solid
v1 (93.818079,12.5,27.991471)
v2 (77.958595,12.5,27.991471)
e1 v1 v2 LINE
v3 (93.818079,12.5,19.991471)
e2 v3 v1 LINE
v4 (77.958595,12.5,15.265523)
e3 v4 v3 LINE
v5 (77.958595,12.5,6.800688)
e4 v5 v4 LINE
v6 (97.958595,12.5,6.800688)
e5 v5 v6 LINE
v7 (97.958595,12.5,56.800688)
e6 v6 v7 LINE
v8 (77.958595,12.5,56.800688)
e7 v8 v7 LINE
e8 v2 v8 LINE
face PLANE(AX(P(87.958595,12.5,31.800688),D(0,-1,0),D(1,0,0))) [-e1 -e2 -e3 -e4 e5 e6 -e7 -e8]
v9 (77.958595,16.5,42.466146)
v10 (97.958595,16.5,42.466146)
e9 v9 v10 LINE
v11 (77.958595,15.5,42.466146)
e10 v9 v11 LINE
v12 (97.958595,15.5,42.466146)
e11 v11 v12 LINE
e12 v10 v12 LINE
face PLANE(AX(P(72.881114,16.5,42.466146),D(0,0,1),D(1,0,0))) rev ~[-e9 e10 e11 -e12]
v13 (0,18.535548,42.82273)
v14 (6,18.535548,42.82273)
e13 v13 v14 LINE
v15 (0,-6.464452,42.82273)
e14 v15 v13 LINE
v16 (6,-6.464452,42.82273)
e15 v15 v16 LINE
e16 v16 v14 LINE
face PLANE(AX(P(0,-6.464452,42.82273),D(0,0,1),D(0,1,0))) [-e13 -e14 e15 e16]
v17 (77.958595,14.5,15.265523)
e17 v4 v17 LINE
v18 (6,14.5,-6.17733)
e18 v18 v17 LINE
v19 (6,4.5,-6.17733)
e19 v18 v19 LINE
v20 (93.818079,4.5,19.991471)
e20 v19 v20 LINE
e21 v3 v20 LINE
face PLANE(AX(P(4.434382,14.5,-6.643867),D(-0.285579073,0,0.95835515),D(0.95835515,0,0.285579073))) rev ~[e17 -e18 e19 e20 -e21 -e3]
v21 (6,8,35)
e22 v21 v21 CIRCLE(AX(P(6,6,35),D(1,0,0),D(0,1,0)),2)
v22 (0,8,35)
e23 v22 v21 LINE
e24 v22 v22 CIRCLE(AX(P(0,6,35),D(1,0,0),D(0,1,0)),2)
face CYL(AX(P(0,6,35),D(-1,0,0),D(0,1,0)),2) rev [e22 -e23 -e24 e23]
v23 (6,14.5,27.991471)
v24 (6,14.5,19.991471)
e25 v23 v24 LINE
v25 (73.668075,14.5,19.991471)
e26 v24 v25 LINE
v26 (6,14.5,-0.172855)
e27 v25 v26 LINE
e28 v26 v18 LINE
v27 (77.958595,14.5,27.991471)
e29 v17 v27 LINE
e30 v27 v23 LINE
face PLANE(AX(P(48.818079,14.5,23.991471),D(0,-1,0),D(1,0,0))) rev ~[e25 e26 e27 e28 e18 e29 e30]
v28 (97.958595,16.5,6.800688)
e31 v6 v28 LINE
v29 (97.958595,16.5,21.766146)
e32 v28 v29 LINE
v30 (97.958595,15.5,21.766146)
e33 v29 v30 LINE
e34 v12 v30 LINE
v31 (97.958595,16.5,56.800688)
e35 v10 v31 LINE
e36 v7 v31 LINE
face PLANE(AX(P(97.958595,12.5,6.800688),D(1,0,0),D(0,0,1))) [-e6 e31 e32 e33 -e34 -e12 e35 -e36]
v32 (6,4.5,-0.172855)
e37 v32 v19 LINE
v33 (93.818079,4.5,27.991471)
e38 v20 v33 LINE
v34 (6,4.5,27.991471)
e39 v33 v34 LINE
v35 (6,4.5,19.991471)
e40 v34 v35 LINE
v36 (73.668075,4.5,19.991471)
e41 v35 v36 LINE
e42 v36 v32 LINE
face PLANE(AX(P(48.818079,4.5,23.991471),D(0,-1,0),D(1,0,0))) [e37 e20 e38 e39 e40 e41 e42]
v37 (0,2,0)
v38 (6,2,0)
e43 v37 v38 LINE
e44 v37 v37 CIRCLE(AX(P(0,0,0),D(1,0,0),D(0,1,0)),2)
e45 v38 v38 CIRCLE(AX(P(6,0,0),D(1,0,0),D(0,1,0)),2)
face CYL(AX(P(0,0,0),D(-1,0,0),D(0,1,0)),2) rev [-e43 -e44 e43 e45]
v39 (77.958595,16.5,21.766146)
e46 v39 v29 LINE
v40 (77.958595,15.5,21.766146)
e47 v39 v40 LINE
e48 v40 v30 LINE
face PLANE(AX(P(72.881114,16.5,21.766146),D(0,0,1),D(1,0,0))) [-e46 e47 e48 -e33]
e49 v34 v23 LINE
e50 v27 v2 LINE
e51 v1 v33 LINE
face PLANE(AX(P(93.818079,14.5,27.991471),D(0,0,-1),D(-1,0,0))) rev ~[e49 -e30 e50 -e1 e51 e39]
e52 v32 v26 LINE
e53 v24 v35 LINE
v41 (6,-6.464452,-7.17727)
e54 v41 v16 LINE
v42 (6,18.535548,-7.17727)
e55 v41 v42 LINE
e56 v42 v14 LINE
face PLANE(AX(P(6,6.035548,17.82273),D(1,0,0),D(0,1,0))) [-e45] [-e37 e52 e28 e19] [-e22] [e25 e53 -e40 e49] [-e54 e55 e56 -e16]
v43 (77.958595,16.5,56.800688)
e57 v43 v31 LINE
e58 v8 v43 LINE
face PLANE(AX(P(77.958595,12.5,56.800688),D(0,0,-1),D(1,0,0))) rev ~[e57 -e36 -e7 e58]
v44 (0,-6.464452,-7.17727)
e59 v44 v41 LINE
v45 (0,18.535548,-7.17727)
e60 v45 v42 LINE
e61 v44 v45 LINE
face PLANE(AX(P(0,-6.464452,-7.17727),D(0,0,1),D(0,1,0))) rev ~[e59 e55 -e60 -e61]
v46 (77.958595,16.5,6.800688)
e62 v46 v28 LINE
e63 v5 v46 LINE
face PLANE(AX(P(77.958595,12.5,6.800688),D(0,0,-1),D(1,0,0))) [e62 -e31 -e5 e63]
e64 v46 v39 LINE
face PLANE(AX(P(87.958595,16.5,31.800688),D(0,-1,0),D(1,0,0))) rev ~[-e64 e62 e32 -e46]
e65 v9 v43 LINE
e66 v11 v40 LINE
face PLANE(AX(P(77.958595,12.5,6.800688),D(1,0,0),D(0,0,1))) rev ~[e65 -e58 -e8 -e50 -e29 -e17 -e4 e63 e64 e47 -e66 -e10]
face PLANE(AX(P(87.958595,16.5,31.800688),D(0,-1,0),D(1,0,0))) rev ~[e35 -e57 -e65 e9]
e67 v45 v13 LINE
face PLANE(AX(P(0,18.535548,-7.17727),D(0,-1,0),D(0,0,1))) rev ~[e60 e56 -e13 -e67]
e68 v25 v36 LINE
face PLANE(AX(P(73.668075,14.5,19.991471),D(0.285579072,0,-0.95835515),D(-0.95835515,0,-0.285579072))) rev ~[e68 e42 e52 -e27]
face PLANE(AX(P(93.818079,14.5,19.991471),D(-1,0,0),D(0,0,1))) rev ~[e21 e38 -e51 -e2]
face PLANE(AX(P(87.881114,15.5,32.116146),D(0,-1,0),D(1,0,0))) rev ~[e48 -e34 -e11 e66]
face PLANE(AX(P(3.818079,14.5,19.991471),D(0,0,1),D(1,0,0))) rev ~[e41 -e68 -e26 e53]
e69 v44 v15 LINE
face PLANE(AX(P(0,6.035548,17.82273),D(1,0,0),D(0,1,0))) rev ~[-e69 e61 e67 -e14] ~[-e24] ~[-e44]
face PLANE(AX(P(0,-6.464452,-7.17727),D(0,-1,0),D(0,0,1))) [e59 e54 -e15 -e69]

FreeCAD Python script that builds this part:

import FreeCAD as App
import Part
import Sketcher


def add_polygon(sketch, points):
    """Adds a closed chain of lines whose ends are joined by coincident constraints."""
    first, n = sketch.GeometryCount, len(points)
    for a, b in zip(points, points[1:] + points[:1]):
        sketch.addGeometry(Part.LineSegment(App.Vector(*a, 0), App.Vector(*b, 0)), False)
    for i in range(n):
        sketch.addConstraint(Sketcher.Constraint("Coincident", first + i, 2, first + (i + 1) % n, 1))

doc = App.newDocument("Part")
params = doc.addObject("Spreadsheet::Sheet", "Params")
for row, (alias, value) in enumerate([
    ("sketch1_diameter", "4 mm"),
    ("sketch1_width", "25 mm"),
    ("sketch1_height", "50 mm"),
    ("pad1_length", "6 mm"),
    ("sketch2_width", "90 mm"),
    ("sketch2_height", "8 mm"),
    ("pad2_length", "10 mm"),
    ("sketch3_width", "20 mm"),
    ("sketch3_height", "50 mm"),
    ("pad3_length", "4 mm"),
    ("sketch4_width", "30 mm"),
    ("sketch4_height", "20.7 mm"),
    ("pocket1_length", "1 mm"),
], start=1):
    params.set(f"A{row}", alias)
    params.set(f"B{row}", "=" + value)
    params.setAlias(f"B{row}", alias)

body = doc.addObject("PartDesign::Body", "Body")

# Sketch on YZ plane
sketch1 = doc.addObject("Sketcher::SketchObject", "Sketch")
body.addObject(sketch1)
sketch1.AttachmentSupport = (doc.YZ_Plane, [""])
sketch1.MapMode = "FlatFace"
add_polygon(sketch1, [(-6.464452, 42.82273), (-6.464452, -7.17727), (18.535548, -7.17727), (18.535548, 42.82273)])  # lines 0-3
sketch1.addGeometry(Part.Circle(App.Vector(0, 0, 0), App.Vector(0, 0, 1), 2), False)  # 4
sketch1.addGeometry(Part.Circle(App.Vector(6, 35, 0), App.Vector(0, 0, 1), 2), False)  # 5
sketch1.addConstraint([
    Sketcher.Constraint("Vertical", 0),
    Sketcher.Constraint("Horizontal", 1),
    Sketcher.Constraint("Vertical", 2),
    Sketcher.Constraint("Horizontal", 3),
    Sketcher.Constraint("Coincident", 4, 3, -1, 1),
    Sketcher.Constraint("Equal", 4, 5),
    Sketcher.Constraint("Diameter", 4, 4.0),
    Sketcher.Constraint("DistanceX", 1, 1, 1, 2, 25.0),
    Sketcher.Constraint("DistanceY", 0, 2, 0, 1, 50.0),
    Sketcher.Constraint("DistanceX", -1, 1, 5, 3, 6.0),
    Sketcher.Constraint("DistanceY", -1, 1, 5, 3, 35.0),
    Sketcher.Constraint("DistanceX", 0, 2, -1, 1, 6.464452),
    Sketcher.Constraint("DistanceY", 0, 2, -1, 1, 7.17727),
])
sketch1.setExpression("Constraints[10]", "Params.sketch1_diameter")
sketch1.setExpression("Constraints[11]", "Params.sketch1_width")
sketch1.setExpression("Constraints[12]", "Params.sketch1_height")
pad1 = doc.addObject("PartDesign::Pad", "Pad")
body.addObject(pad1)
pad1.Profile = sketch1
pad1.setExpression("Length", "Params.pad1_length")

# Sketch on XZ plane
sketch2 = doc.addObject("Sketcher::SketchObject", "Sketch001")
body.addObject(sketch2)
sketch2.AttachmentSupport = (doc.XZ_Plane, [""])
sketch2.MapMode = "FlatFace"
sketch2.AttachmentOffset = App.Placement(App.Vector(0, 0, -14.5), App.Rotation())
add_polygon(sketch2, [(93.818079, 27.991471), (3.818079, 27.991471), (3.818079, 19.991471), (73.668075, 19.991471), (4.434382, -0.639392), (4.434382, -6.643867), (93.818079, 19.991471)])  # lines 0-6
sketch2.addConstraint([
    Sketcher.Constraint("Horizontal", 0),
    Sketcher.Constraint("Vertical", 1),
    Sketcher.Constraint("Horizontal", 2),
    Sketcher.Constraint("Vertical", 4),
    Sketcher.Constraint("Vertical", 6),
    Sketcher.Constraint("Parallel", 3, 5),
    Sketcher.Constraint("Horizontal", 2, 2, 5, 2),
    Sketcher.Constraint("DistanceX", 0, 2, 0, 1, 90.0),
    Sketcher.Constraint("DistanceY", 1, 2, 1, 1, 8.0),
    Sketcher.Constraint("Distance", 3, 72.242209),
    Sketcher.Constraint("Distance", 5, 93.267821),
    Sketcher.Constraint("DistanceX", 2, 1, 2, 2, 69.849996),
    Sketcher.Constraint("DistanceX", -1, 1, 0, 2, 3.818079),
    Sketcher.Constraint("DistanceY", -1, 1, 0, 2, 27.991471),
])
sketch2.setExpression("Constraints[14]", "Params.sketch2_width")
sketch2.setExpression("Constraints[15]", "Params.sketch2_height")
pad2 = doc.addObject("PartDesign::Pad", "Pad001")
body.addObject(pad2)
pad2.Profile = sketch2
pad2.setExpression("Length", "Params.pad2_length")

# Sketch on XZ plane
sketch3 = doc.addObject("Sketcher::SketchObject", "Sketch002")
body.addObject(sketch3)
sketch3.AttachmentSupport = (doc.XZ_Plane, [""])
sketch3.MapMode = "FlatFace"
sketch3.AttachmentOffset = App.Placement(App.Vector(0, 0, -12.5), App.Rotation())
add_polygon(sketch3, [(77.958595, 56.800688), (77.958595, 6.800688), (97.958595, 6.800688), (97.958595, 56.800688)])  # lines 0-3
sketch3.addConstraint([
    Sketcher.Constraint("Vertical", 0),
    Sketcher.Constraint("Horizontal", 1),
    Sketcher.Constraint("Vertical", 2),
    Sketcher.Constraint("Horizontal", 3),
    Sketcher.Constraint("DistanceX", 1, 1, 1, 2, 20.0),
    Sketcher.Constraint("DistanceY", 0, 2, 0, 1, 50.0),
    Sketcher.Constraint("DistanceX", -1, 1, 0, 2, 77.958595),
    Sketcher.Constraint("DistanceY", -1, 1, 0, 2, 6.800688),
])
sketch3.setExpression("Constraints[8]", "Params.sketch3_width")
sketch3.setExpression("Constraints[9]", "Params.sketch3_height")
pad3 = doc.addObject("PartDesign::Pad", "Pad002")
body.addObject(pad3)
pad3.Profile = sketch3
pad3.setExpression("Length", "Params.pad3_length")
pad3.Reversed = True

# Sketch on XZ plane
sketch4 = doc.addObject("Sketcher::SketchObject", "Sketch003")
body.addObject(sketch4)
sketch4.AttachmentSupport = (doc.XZ_Plane, [""])
sketch4.MapMode = "FlatFace"
sketch4.AttachmentOffset = App.Placement(App.Vector(0, 0, -16.5), App.Rotation())
add_polygon(sketch4, [(72.881114, 42.466146), (72.881114, 21.766146), (102.881114, 21.766146), (102.881114, 42.466146)])  # lines 0-3
sketch4.addConstraint([
    Sketcher.Constraint("Vertical", 0),
    Sketcher.Constraint("Horizontal", 1),
    Sketcher.Constraint("Vertical", 2),
    Sketcher.Constraint("Horizontal", 3),
    Sketcher.Constraint("DistanceX", 1, 1, 1, 2, 30.0),
    Sketcher.Constraint("DistanceY", 0, 2, 0, 1, 20.7),
    Sketcher.Constraint("DistanceX", -1, 1, 0, 2, 72.881114),
    Sketcher.Constraint("DistanceY", -1, 1, 0, 2, 21.766146),
])
sketch4.setExpression("Constraints[8]", "Params.sketch4_width")
sketch4.setExpression("Constraints[9]", "Params.sketch4_height")
pocket1 = doc.addObject("PartDesign::Pocket", "Pocket")
body.addObject(pocket1)
pocket1.Profile = sketch4
pocket1.setExpression("Length", "Params.pocket1_length")
pocket1.Reversed = True

doc.recompute()
